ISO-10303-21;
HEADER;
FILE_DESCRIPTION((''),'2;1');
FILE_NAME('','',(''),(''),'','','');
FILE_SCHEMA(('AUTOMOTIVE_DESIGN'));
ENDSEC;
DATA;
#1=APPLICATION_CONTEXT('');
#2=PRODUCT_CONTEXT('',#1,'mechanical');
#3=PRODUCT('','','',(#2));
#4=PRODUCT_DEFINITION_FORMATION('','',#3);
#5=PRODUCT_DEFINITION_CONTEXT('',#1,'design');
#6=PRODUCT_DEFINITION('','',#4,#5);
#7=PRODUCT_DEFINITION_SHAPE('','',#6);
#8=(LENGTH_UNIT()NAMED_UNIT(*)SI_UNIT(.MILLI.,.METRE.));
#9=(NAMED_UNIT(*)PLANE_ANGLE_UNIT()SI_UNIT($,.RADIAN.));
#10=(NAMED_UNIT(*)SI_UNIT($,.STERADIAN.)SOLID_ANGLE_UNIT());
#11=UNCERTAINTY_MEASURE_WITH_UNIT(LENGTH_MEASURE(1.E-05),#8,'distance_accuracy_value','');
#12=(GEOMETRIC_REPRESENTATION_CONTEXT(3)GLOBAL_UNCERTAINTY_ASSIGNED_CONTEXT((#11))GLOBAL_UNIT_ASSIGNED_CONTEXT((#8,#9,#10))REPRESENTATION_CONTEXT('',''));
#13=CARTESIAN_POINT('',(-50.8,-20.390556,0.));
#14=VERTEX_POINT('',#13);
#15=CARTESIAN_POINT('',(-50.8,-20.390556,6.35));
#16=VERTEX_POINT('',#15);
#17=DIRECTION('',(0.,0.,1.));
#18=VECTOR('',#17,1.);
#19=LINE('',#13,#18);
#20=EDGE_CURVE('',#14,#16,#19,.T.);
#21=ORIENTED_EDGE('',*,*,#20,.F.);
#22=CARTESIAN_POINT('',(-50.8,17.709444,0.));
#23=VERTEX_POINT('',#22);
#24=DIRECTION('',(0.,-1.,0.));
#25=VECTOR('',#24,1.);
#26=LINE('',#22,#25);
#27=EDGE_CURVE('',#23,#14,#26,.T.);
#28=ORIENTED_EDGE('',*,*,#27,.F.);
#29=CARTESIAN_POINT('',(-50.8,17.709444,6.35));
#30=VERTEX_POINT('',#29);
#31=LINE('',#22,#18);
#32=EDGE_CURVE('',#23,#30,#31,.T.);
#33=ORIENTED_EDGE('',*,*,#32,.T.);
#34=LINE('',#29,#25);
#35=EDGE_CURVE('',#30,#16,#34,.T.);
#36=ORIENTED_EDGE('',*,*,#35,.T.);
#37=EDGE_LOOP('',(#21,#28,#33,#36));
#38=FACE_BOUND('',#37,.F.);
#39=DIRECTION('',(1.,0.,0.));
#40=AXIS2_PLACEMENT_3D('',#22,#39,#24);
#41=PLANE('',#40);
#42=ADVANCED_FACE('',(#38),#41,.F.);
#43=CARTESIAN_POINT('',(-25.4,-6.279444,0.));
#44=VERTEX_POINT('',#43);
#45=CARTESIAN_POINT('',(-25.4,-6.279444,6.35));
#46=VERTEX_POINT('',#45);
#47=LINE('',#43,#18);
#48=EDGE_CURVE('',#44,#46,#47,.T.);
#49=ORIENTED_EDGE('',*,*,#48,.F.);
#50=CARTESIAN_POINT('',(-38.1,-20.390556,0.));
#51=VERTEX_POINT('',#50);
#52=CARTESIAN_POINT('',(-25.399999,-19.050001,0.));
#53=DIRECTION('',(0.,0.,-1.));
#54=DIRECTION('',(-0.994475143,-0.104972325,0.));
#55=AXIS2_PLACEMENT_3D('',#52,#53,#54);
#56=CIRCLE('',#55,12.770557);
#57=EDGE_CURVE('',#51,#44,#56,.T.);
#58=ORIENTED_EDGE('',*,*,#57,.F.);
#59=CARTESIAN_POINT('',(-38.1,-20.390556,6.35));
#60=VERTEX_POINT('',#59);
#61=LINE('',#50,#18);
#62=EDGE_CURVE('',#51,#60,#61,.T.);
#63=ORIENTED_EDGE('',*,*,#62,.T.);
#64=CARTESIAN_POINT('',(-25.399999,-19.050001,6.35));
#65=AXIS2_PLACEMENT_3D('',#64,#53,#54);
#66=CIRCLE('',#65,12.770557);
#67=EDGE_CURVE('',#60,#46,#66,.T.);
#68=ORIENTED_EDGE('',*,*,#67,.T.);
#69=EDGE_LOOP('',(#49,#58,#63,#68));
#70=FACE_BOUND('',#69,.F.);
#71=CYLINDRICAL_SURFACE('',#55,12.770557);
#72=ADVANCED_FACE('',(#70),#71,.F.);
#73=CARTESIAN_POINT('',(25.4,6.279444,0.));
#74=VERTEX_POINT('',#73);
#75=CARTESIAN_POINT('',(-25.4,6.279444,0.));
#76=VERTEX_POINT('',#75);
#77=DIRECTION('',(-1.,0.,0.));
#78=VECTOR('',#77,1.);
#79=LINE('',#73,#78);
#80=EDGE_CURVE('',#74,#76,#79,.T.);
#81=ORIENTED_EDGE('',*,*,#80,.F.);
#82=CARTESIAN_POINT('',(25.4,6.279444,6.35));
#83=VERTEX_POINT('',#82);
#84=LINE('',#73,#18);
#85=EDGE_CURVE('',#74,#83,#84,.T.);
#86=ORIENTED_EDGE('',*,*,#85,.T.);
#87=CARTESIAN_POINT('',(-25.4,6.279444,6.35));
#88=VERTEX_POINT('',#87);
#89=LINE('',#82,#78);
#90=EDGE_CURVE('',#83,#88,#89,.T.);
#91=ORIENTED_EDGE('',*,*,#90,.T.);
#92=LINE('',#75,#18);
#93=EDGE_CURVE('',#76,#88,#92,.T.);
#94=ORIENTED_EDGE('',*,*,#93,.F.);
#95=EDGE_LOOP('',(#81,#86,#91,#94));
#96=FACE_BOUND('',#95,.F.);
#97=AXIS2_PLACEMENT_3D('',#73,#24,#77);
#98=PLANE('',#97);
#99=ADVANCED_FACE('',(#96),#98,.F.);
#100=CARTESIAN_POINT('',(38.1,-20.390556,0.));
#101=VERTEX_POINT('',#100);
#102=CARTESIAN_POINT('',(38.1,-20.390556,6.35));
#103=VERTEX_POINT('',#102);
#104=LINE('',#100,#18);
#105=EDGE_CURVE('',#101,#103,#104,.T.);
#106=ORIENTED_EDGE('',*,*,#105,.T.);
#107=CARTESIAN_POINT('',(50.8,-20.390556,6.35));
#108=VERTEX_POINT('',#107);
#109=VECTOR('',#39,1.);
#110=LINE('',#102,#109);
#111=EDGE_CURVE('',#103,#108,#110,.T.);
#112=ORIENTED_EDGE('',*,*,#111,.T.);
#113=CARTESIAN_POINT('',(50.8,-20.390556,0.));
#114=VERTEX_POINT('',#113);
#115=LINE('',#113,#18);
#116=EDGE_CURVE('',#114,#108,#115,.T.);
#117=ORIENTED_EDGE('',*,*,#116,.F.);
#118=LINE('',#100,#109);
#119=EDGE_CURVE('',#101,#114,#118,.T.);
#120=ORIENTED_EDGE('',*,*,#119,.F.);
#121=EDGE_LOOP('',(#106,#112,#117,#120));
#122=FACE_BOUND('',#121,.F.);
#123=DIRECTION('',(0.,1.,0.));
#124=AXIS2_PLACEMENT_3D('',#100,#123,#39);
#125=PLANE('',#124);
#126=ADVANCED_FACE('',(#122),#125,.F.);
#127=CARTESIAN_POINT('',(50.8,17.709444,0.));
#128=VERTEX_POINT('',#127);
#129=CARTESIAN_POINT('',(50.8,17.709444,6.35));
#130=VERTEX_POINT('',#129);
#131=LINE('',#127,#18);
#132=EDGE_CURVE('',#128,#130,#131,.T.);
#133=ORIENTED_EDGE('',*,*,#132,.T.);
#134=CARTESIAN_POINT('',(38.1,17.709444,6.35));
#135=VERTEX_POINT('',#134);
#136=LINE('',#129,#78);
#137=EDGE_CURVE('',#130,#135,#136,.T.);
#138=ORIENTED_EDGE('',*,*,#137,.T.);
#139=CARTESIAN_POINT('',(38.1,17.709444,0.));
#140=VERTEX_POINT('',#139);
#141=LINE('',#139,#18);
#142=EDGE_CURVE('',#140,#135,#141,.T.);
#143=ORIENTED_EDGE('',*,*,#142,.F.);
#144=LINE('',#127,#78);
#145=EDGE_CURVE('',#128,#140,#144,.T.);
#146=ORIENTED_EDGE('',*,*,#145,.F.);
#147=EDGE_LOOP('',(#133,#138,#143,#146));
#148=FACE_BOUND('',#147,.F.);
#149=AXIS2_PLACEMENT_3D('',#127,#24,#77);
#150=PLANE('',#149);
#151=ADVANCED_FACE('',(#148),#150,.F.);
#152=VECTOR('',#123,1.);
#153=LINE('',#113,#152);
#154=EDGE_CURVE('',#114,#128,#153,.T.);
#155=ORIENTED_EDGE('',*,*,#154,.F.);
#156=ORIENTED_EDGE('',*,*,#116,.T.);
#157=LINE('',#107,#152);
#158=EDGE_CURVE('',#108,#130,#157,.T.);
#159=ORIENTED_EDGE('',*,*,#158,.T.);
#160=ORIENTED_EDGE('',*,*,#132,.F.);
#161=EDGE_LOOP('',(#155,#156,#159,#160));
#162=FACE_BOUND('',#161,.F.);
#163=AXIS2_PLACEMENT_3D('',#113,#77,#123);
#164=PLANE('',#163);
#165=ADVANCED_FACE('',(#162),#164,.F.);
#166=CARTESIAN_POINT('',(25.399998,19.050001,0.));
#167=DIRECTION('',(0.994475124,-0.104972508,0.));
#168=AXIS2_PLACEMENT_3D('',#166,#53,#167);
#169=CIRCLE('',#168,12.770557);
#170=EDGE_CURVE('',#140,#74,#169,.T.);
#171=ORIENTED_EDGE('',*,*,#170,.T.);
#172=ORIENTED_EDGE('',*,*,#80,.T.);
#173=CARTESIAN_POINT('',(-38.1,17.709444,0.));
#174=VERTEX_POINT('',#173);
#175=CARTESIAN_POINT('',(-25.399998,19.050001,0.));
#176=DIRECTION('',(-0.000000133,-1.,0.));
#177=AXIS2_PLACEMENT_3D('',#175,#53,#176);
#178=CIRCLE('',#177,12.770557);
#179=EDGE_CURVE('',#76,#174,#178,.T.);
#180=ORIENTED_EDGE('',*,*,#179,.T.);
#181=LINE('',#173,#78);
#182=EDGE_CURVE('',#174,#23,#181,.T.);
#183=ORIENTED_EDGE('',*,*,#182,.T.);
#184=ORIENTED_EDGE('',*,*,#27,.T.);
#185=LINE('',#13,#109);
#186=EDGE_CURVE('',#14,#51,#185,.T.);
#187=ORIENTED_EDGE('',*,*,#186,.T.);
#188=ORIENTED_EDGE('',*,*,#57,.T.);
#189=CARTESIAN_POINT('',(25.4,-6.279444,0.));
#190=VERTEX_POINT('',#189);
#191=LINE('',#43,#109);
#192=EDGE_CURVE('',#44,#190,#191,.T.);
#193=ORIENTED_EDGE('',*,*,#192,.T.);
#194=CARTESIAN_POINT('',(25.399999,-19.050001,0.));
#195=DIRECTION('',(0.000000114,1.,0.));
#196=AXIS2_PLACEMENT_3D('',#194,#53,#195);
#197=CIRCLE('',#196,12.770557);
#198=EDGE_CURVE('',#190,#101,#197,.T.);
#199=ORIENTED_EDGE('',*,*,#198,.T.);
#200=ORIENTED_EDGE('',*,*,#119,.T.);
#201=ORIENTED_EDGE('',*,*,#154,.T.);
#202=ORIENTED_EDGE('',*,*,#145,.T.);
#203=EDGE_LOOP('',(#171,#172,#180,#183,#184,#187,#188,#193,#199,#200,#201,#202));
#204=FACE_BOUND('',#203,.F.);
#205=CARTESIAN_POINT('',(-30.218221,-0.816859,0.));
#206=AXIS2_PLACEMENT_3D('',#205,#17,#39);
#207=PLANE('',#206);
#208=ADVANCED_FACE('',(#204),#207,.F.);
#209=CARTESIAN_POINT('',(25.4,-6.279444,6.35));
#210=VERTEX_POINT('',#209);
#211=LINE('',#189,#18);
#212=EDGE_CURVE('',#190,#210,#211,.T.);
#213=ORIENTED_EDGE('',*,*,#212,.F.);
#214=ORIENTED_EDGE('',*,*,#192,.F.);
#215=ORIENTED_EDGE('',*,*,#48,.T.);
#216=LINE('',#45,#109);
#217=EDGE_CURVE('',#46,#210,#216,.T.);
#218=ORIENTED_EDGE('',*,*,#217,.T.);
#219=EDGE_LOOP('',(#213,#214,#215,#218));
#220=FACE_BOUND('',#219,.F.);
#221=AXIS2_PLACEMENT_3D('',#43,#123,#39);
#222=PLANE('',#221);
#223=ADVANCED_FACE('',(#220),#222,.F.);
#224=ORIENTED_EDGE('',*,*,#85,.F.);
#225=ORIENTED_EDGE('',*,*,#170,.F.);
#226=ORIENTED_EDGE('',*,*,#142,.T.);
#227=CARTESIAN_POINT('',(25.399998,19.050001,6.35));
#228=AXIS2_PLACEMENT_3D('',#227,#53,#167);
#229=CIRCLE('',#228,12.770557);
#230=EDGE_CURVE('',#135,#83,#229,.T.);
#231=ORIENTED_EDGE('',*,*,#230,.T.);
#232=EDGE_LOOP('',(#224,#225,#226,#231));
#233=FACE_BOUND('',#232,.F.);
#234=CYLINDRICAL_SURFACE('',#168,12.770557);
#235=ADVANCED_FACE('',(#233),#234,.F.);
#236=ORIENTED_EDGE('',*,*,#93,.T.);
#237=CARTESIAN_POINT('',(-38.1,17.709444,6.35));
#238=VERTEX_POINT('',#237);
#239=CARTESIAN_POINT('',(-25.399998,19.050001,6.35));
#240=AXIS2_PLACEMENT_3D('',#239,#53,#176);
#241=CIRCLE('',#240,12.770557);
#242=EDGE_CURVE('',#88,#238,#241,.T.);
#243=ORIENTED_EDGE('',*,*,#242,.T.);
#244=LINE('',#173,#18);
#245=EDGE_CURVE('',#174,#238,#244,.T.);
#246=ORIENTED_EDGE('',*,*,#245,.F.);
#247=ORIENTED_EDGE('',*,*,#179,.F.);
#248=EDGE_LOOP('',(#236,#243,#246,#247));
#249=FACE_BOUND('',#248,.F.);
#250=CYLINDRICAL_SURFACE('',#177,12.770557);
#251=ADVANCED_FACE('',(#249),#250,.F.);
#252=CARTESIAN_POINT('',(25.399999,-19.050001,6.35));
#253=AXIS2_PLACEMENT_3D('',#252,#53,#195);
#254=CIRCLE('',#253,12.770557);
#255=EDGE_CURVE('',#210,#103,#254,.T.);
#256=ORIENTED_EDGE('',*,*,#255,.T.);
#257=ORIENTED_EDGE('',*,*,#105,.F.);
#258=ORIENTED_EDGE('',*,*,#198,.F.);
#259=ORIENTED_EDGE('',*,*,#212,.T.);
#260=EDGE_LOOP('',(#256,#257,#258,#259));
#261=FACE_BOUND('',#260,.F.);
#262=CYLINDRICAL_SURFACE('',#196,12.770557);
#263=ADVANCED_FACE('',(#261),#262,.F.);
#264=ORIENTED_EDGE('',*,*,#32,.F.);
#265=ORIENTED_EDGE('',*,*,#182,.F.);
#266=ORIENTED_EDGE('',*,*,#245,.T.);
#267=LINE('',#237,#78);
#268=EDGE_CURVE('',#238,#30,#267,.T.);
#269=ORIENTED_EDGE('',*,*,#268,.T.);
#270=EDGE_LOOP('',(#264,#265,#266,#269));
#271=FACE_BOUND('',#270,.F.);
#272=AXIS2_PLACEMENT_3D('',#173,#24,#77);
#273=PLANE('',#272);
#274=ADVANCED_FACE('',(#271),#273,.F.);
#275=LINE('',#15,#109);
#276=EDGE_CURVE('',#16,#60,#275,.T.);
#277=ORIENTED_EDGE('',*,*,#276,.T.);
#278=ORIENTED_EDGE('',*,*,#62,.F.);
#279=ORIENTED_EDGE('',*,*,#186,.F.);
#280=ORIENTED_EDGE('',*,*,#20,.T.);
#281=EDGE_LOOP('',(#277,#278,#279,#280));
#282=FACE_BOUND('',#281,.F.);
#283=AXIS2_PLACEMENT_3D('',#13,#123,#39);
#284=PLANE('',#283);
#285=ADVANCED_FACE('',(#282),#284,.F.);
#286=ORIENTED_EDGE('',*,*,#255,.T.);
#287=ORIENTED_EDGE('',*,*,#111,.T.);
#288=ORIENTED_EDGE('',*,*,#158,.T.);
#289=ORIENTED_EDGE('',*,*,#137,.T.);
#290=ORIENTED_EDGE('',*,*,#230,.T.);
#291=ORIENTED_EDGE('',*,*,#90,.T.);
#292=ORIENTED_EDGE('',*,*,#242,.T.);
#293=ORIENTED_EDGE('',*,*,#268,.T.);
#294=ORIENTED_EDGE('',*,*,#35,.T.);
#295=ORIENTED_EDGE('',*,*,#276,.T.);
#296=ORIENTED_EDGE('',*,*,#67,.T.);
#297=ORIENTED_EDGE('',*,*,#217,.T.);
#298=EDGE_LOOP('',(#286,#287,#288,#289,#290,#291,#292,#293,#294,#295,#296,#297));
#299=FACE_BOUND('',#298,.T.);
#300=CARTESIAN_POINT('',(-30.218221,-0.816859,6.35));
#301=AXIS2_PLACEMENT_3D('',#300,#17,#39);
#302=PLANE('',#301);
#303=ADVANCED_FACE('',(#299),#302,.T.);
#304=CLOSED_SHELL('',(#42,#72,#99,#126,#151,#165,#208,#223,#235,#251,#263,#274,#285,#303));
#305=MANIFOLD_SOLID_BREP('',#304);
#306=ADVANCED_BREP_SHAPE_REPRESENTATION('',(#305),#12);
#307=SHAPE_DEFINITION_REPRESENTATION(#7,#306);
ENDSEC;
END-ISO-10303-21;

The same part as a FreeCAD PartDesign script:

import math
import FreeCAD as App
import Part
import Sketcher

V = App.Vector
Q = App.Units.Quantity

doc = App.newDocument("Part")
body = doc.addObject("PartDesign::Body", "Body")

# Sketch on XY plane
sketch1 = body.newObject("Sketcher::SketchObject", "Sketch")
sketch1.AttachmentSupport = (doc.getObject("XY_Plane"), [""])
sketch1.MapMode = "FlatFace"
sketch1.addGeometry([
    Part.ArcOfCircle(Part.Circle(V(-25.399998, 19.050001, 0), V(0, 0, 1), 12.770557), math.radians(-173.974417), math.radians(-90.000008)),  # 0
    Part.LineSegment(V(-38.1, 17.709444, 0), V(-50.8, 17.709444, 0)),  # 1
    Part.LineSegment(V(-50.8, 17.709444, 0), V(-50.8, -20.390556, 0)),  # 2
    Part.LineSegment(V(-50.8, -20.390556, 0), V(-38.1, -20.390556, 0)),  # 3
    Part.ArcOfCircle(Part.Circle(V(-25.399999, -19.050001, 0), V(0, 0, 1), 12.770557), math.radians(90.000007), math.radians(186.025572)),  # 4
    Part.LineSegment(V(-25.4, -6.279444, 0), V(25.4, -6.279444, 0)),  # 5
    Part.ArcOfCircle(Part.Circle(V(25.399999, -19.050001, 0), V(0, 0, 1), 12.770557), math.radians(-6.025572), math.radians(89.999993)),  # 6
    Part.LineSegment(V(38.1, -20.390556, 0), V(50.8, -20.390556, 0)),  # 7
    Part.LineSegment(V(50.8, -20.390556, 0), V(50.8, 17.709444, 0)),  # 8
    Part.LineSegment(V(50.8, 17.709444, 0), V(38.1, 17.709444, 0)),  # 9
    Part.ArcOfCircle(Part.Circle(V(25.399998, 19.050001, 0), V(0, 0, 1), 12.770557), math.radians(-89.999992), math.radians(-6.025583)),  # 10
    Part.LineSegment(V(25.4, 6.279444, 0), V(-25.4, 6.279444, 0)),  # 11
], False)
sketch1.addConstraint([
    Sketcher.Constraint("Coincident", 0, 1, 1, 1),
    Sketcher.Constraint("Coincident", 1, 2, 2, 1),
    Sketcher.Constraint("Coincident", 2, 2, 3, 1),
    Sketcher.Constraint("Coincident", 3, 2, 4, 2),
    Sketcher.Constraint("Tangent", 4, 1, 5, 1),
    Sketcher.Constraint("Tangent", 5, 2, 6, 2),
    Sketcher.Constraint("Coincident", 6, 1, 7, 1),
    Sketcher.Constraint("Coincident", 7, 2, 8, 1),
    Sketcher.Constraint("Coincident", 8, 2, 9, 1),
    Sketcher.Constraint("Coincident", 9, 2, 10, 2),
    Sketcher.Constraint("Tangent", 10, 1, 11, 1),
    Sketcher.Constraint("Tangent", 11, 2, 0, 2),
    Sketcher.Constraint("Horizontal", 1),
    Sketcher.Constraint("Vertical", 2),
    Sketcher.Constraint("Horizontal", 3),
    Sketcher.Constraint("Horizontal", 5),
    Sketcher.Constraint("Horizontal", 7),
    Sketcher.Constraint("Vertical", 8),
    Sketcher.Constraint("Horizontal", 9),
    Sketcher.Constraint("Horizontal", 11),
    Sketcher.Constraint("Equal", 0, 4),
    Sketcher.Constraint("Equal", 4, 6),
    Sketcher.Constraint("Equal", 6, 10),
    Sketcher.Constraint("Symmetric", 0, 3, 6, 3, -1, 1),
    Sketcher.Constraint("Symmetric", 3, 2, 6, 1, -2),
    Sketcher.Constraint("Symmetric", 1, 2, 8, 2, -2),
    Sketcher.Constraint("Vertical", 6, 3, 10, 3),
    Sketcher.Constraint("Vertical", 0, 1, 3, 2),
    Sketcher.Constraint("DistanceX", 5, 1, 5, 2, Q("2 in")),
    Sketcher.Constraint("DistanceX", 1, 2, 1, 1, Q("0.5 in")),
    Sketcher.Constraint("DistanceY", 2, 2, 2, 1, Q("1.5 in")),
    Sketcher.Constraint("DistanceX", 1, 2, -1, 1, Q("2 in")),
    Sketcher.Constraint("DistanceY", 10, 1, 9, 2, Q("0.45 in")),
])
pad1 = body.newObject("PartDesign::Pad", "Pad")
pad1.Profile = sketch1
pad1.Length = Q("0.25 in")

doc.recompute()
